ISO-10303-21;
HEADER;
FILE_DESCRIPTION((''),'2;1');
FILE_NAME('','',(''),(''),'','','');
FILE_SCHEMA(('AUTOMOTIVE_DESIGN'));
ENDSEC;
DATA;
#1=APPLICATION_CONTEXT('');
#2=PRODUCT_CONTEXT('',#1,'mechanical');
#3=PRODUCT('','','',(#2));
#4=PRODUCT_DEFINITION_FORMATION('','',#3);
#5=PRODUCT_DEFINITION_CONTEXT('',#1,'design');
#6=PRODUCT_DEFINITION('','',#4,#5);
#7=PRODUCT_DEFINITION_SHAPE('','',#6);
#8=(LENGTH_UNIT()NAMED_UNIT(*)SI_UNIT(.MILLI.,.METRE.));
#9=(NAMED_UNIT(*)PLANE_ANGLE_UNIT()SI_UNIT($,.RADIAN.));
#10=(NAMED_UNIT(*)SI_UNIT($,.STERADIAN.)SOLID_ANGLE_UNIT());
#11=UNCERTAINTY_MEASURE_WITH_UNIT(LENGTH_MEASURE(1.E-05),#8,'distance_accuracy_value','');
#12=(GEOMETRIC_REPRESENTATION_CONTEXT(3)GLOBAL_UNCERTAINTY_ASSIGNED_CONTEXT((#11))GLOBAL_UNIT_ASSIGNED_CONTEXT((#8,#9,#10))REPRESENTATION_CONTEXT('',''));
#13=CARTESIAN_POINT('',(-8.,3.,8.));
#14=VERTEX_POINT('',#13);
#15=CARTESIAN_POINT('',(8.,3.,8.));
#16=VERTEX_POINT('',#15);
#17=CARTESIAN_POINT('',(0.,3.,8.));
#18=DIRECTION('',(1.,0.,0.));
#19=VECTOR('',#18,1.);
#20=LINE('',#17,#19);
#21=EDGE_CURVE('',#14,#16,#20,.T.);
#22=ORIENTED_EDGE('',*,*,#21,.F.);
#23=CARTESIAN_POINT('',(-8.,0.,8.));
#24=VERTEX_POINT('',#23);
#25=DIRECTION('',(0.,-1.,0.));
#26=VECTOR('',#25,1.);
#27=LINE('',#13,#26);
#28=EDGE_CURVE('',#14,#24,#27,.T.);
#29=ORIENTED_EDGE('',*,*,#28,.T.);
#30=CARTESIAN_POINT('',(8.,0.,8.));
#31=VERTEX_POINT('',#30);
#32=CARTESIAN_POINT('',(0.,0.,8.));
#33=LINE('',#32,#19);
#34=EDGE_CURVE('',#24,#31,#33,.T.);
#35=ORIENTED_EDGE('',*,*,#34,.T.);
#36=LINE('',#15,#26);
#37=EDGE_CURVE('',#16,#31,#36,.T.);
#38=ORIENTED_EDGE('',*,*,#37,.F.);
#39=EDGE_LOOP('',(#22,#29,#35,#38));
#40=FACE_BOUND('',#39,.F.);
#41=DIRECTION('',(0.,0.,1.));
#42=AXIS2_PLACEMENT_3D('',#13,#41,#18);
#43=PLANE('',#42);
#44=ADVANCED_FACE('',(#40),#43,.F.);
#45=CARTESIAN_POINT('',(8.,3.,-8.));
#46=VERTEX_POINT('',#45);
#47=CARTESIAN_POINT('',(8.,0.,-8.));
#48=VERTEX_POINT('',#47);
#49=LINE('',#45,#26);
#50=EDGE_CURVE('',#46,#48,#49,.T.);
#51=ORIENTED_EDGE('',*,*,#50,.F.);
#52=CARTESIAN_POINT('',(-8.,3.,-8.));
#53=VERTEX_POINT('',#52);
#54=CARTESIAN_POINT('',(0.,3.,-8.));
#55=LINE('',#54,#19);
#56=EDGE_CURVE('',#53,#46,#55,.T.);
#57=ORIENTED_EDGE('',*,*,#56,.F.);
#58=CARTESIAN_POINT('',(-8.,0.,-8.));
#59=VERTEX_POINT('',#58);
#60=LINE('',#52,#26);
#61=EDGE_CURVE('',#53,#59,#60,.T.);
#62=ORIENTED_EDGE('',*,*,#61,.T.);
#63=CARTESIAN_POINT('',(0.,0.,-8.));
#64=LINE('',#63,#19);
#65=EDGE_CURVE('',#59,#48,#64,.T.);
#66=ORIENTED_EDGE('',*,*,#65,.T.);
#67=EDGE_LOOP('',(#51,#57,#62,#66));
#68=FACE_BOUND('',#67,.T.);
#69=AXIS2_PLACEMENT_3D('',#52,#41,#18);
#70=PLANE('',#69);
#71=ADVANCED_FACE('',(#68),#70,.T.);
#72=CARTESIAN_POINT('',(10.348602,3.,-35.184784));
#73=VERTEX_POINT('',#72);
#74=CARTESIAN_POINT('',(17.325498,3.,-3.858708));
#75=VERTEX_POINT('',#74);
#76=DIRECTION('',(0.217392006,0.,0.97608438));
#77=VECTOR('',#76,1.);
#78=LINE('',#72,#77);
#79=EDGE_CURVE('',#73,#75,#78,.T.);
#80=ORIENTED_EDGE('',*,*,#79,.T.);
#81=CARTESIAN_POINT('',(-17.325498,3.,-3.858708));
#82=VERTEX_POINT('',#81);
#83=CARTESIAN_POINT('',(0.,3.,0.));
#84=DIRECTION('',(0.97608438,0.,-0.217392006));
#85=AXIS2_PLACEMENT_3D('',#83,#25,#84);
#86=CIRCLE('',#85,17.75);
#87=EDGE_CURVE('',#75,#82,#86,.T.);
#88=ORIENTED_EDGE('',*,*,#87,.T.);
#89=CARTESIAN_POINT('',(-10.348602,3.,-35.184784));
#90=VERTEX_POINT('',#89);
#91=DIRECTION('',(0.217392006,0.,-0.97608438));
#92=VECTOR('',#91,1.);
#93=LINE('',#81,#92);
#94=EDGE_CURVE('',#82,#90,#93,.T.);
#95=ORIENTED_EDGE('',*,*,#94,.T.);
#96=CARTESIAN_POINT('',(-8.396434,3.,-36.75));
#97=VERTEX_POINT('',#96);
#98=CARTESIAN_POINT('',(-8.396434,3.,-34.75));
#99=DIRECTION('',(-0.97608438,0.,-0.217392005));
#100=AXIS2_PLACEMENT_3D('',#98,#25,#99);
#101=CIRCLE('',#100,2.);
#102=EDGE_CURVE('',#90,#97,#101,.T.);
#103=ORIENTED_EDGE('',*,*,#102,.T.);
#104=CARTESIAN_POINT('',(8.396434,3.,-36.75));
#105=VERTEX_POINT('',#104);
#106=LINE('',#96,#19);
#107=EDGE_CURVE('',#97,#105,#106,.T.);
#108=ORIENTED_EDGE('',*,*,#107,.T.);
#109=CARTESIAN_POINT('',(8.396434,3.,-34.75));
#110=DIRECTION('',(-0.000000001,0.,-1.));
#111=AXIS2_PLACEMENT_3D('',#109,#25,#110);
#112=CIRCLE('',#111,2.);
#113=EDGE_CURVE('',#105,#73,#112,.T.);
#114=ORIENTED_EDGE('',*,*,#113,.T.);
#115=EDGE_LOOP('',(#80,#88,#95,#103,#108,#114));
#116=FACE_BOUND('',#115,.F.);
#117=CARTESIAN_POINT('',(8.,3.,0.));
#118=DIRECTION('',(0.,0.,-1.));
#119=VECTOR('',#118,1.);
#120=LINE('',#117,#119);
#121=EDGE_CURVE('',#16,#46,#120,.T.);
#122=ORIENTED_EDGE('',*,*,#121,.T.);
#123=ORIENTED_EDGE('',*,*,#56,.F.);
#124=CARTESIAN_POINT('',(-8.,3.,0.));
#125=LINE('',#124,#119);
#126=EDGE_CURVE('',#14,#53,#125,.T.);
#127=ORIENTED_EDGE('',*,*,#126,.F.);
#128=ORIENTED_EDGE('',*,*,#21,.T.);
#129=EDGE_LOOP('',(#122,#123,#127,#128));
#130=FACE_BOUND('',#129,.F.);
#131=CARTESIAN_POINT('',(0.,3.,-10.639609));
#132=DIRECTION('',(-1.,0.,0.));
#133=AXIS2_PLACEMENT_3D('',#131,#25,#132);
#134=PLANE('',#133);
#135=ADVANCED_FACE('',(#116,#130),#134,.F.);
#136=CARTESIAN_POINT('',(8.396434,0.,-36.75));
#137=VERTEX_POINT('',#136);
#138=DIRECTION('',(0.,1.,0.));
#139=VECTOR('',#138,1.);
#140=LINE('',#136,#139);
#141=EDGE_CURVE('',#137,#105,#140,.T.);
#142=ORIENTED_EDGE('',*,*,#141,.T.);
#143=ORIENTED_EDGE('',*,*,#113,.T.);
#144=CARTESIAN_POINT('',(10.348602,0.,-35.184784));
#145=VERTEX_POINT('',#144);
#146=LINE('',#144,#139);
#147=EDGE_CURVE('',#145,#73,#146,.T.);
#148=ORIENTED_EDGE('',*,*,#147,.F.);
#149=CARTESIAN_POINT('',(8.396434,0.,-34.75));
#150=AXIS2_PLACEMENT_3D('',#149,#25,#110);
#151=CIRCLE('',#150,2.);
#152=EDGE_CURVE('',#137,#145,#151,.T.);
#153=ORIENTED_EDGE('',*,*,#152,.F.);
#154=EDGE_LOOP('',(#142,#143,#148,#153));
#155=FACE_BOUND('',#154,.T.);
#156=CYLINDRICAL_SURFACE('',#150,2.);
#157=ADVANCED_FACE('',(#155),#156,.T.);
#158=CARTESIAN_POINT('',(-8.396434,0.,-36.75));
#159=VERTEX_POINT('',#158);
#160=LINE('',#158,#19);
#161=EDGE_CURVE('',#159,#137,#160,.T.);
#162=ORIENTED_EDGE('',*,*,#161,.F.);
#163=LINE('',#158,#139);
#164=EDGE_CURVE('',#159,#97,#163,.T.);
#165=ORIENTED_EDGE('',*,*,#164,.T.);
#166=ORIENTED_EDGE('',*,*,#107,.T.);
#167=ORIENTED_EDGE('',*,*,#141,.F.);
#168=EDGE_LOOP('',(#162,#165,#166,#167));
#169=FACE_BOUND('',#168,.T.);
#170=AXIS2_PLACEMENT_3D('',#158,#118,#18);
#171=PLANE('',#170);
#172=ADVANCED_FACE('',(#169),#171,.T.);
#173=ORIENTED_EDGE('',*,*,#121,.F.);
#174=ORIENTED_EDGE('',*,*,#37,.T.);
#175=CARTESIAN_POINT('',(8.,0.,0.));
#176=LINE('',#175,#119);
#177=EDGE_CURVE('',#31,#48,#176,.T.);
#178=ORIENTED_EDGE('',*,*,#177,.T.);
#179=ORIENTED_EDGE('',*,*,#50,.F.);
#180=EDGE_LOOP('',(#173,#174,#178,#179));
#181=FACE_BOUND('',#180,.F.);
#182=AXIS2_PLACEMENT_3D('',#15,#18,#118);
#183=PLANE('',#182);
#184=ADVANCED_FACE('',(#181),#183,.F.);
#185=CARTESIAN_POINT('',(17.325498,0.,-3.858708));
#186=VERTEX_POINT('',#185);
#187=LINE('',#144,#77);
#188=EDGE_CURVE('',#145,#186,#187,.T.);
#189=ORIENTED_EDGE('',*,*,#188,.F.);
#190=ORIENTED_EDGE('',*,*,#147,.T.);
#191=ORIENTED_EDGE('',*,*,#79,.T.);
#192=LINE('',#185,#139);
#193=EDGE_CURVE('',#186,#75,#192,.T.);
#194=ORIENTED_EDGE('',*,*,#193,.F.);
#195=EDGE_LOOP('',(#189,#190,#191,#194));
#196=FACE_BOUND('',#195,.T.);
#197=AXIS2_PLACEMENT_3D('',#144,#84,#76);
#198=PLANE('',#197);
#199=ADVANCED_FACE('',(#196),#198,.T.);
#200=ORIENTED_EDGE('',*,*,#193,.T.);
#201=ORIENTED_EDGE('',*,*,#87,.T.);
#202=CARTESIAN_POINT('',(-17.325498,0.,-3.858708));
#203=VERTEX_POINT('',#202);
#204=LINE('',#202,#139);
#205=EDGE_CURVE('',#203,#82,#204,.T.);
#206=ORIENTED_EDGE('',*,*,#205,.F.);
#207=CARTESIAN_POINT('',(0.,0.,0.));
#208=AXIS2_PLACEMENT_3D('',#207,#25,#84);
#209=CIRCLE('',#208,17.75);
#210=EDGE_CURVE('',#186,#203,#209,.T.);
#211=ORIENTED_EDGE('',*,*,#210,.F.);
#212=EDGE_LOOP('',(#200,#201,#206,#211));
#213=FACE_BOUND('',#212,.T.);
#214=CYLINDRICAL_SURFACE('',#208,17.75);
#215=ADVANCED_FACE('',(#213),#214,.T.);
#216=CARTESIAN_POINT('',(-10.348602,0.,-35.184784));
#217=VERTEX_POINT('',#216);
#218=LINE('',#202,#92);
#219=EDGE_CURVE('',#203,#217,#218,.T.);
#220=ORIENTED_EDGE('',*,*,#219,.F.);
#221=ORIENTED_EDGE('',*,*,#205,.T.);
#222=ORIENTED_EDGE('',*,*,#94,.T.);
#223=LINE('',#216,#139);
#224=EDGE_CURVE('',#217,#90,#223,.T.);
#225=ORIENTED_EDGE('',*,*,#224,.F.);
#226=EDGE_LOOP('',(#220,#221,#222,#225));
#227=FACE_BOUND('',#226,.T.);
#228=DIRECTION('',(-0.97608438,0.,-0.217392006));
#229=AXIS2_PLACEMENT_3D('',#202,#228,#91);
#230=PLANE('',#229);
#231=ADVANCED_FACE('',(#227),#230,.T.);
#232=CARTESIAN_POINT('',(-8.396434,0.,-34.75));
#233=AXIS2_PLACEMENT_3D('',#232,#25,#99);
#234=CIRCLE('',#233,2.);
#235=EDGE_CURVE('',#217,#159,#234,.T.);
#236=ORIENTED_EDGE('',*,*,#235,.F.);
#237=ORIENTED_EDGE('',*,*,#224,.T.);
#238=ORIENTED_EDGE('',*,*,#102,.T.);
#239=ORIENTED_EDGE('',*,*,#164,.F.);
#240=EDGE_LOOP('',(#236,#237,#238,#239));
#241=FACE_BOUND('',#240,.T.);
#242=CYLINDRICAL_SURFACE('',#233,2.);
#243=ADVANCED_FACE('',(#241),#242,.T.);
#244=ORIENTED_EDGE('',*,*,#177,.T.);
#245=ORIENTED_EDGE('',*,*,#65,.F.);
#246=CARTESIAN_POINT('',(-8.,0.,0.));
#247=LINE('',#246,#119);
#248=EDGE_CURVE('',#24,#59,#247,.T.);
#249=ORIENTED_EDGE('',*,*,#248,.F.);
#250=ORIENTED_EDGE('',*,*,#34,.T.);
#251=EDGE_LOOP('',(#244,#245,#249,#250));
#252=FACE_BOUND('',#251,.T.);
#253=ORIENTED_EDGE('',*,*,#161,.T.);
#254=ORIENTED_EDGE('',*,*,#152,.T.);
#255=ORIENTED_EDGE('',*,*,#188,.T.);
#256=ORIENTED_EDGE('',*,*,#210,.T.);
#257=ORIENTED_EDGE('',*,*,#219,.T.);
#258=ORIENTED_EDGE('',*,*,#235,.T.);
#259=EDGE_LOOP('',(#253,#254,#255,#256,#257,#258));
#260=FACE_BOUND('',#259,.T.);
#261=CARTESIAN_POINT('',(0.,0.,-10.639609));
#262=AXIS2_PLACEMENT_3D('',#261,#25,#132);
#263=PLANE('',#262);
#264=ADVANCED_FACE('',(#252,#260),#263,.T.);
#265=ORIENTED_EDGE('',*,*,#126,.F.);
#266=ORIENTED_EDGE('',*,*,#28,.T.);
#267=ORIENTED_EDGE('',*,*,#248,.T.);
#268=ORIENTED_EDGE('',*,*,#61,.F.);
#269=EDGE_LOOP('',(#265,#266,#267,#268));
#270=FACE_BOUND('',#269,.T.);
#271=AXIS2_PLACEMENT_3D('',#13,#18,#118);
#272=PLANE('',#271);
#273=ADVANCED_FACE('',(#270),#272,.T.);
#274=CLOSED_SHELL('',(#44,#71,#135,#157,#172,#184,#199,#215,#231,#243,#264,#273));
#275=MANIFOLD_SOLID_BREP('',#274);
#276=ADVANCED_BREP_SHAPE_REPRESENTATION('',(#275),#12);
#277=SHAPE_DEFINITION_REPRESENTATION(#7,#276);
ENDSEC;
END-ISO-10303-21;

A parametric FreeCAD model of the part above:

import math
import FreeCAD as App
import Part
import Sketcher


def add_polygon(sketch, points):
    """Adds a closed chain of lines whose ends are joined by coincident constraints."""
    first, n = sketch.GeometryCount, len(points)
    for a, b in zip(points, points[1:] + points[:1]):
        sketch.addGeometry(Part.LineSegment(App.Vector(*a, 0), App.Vector(*b, 0)), False)
    for i in range(n):
        sketch.addConstraint(Sketcher.Constraint("Coincident", first + i, 2, first + (i + 1) % n, 1))

doc = App.newDocument("Part")
body = doc.addObject("PartDesign::Body", "Body")

sketch1 = body.newObject("Sketcher::SketchObject", "Sketch")
sketch1.AttachmentSupport = (doc.getObject("XZ_Plane"), [""])
sketch1.MapMode = "FlatFace"
sketch1.addGeometry(Part.LineSegment(App.Vector(8.4, -36.8, 0), App.Vector(-8.4, -36.8, 0)), False)
sketch1.addGeometry(Part.ArcOfCircle(Part.Circle(App.Vector(-8.4, -34.8, 0), App.Vector(0, 0, 1), 2), math.radians(-167), math.radians(-90)), False)
sketch1.addGeometry(Part.LineSegment(App.Vector(-10.3, -35.2, 0), App.Vector(-17.3, -3.9, 0)), False)
sketch1.addGeometry(Part.ArcOfCircle(Part.Circle(App.Vector(0, 0, 0), App.Vector(0, 0, 1), 17.8), math.radians(-13), math.radians(193)), False)
sketch1.addGeometry(Part.LineSegment(App.Vector(17.3, -3.9, 0), App.Vector(10.3, -35.2, 0)), False)
sketch1.addGeometry(Part.ArcOfCircle(Part.Circle(App.Vector(8.4, -34.8, 0), App.Vector(0, 0, 1), 2), math.radians(-90), math.radians(-13)), False)
sketch1.addConstraint(Sketcher.Constraint("Tangent", 0, 2, 1, 2))
sketch1.addConstraint(Sketcher.Constraint("Tangent", 1, 1, 2, 1))
sketch1.addConstraint(Sketcher.Constraint("Tangent", 2, 2, 3, 2))
sketch1.addConstraint(Sketcher.Constraint("Tangent", 3, 1, 4, 1))
sketch1.addConstraint(Sketcher.Constraint("Tangent", 4, 2, 5, 2))
sketch1.addConstraint(Sketcher.Constraint("Tangent", 5, 1, 0, 1))
sketch1.addConstraint(Sketcher.Constraint("Horizontal", 0))
sketch1.addConstraint(Sketcher.Constraint("Coincident", 3, 3, -1, 1))
sketch1.addConstraint(Sketcher.Constraint("Equal", 1, 5))
sketch1.addConstraint(Sketcher.Constraint("Horizontal", 2, 2, 3, 1))
sketch1.addConstraint(Sketcher.Constraint("Radius", 1, 2.0))
sketch1.addConstraint(Sketcher.Constraint("Radius", 3, 17.75))
sketch1.addConstraint(Sketcher.Constraint("DistanceY", 1, 3, -1, 1, 34.75))
sketch1.addConstraint(Sketcher.Constraint("DistanceX", 0, 2, 0, 1, 16.792867))
pad1 = body.newObject("PartDesign::Pad", "Pad")
pad1.Profile = sketch1
pad1.Length = 3
pad1.Reversed = True

sketch2 = body.newObject("Sketcher::SketchObject", "Sketch001")
sketch2.AttachmentSupport = (doc.getObject("XZ_Plane"), [""])
sketch2.MapMode = "FlatFace"
sketch2.AttachmentOffset = App.Placement(App.Vector(0, 0, -3), App.Rotation())
add_polygon(sketch2, [(-8, -8), (-8, 8), (8, 8), (8, -8)])
sketch2.addConstraint(Sketcher.Constraint("Vertical", 0))
sketch2.addConstraint(Sketcher.Constraint("Horizontal", 1))
sketch2.addConstraint(Sketcher.Constraint("Vertical", 2))
sketch2.addConstraint(Sketcher.Constraint("Horizontal", 3))
sketch2.addConstraint(Sketcher.Constraint("Symmetric", 0, 2, 2, 2, -1, 1))
sketch2.addConstraint(Sketcher.Constraint("Equal", 3, 0))
sketch2.addConstraint(Sketcher.Constraint("DistanceX", 1, 1, 1, 2, 16.0))
pocket1 = body.newObject("PartDesign::Pocket", "Pocket")
pocket1.Profile = sketch2
pocket1.Length = 3
pocket1.Reversed = True

doc.recompute()
